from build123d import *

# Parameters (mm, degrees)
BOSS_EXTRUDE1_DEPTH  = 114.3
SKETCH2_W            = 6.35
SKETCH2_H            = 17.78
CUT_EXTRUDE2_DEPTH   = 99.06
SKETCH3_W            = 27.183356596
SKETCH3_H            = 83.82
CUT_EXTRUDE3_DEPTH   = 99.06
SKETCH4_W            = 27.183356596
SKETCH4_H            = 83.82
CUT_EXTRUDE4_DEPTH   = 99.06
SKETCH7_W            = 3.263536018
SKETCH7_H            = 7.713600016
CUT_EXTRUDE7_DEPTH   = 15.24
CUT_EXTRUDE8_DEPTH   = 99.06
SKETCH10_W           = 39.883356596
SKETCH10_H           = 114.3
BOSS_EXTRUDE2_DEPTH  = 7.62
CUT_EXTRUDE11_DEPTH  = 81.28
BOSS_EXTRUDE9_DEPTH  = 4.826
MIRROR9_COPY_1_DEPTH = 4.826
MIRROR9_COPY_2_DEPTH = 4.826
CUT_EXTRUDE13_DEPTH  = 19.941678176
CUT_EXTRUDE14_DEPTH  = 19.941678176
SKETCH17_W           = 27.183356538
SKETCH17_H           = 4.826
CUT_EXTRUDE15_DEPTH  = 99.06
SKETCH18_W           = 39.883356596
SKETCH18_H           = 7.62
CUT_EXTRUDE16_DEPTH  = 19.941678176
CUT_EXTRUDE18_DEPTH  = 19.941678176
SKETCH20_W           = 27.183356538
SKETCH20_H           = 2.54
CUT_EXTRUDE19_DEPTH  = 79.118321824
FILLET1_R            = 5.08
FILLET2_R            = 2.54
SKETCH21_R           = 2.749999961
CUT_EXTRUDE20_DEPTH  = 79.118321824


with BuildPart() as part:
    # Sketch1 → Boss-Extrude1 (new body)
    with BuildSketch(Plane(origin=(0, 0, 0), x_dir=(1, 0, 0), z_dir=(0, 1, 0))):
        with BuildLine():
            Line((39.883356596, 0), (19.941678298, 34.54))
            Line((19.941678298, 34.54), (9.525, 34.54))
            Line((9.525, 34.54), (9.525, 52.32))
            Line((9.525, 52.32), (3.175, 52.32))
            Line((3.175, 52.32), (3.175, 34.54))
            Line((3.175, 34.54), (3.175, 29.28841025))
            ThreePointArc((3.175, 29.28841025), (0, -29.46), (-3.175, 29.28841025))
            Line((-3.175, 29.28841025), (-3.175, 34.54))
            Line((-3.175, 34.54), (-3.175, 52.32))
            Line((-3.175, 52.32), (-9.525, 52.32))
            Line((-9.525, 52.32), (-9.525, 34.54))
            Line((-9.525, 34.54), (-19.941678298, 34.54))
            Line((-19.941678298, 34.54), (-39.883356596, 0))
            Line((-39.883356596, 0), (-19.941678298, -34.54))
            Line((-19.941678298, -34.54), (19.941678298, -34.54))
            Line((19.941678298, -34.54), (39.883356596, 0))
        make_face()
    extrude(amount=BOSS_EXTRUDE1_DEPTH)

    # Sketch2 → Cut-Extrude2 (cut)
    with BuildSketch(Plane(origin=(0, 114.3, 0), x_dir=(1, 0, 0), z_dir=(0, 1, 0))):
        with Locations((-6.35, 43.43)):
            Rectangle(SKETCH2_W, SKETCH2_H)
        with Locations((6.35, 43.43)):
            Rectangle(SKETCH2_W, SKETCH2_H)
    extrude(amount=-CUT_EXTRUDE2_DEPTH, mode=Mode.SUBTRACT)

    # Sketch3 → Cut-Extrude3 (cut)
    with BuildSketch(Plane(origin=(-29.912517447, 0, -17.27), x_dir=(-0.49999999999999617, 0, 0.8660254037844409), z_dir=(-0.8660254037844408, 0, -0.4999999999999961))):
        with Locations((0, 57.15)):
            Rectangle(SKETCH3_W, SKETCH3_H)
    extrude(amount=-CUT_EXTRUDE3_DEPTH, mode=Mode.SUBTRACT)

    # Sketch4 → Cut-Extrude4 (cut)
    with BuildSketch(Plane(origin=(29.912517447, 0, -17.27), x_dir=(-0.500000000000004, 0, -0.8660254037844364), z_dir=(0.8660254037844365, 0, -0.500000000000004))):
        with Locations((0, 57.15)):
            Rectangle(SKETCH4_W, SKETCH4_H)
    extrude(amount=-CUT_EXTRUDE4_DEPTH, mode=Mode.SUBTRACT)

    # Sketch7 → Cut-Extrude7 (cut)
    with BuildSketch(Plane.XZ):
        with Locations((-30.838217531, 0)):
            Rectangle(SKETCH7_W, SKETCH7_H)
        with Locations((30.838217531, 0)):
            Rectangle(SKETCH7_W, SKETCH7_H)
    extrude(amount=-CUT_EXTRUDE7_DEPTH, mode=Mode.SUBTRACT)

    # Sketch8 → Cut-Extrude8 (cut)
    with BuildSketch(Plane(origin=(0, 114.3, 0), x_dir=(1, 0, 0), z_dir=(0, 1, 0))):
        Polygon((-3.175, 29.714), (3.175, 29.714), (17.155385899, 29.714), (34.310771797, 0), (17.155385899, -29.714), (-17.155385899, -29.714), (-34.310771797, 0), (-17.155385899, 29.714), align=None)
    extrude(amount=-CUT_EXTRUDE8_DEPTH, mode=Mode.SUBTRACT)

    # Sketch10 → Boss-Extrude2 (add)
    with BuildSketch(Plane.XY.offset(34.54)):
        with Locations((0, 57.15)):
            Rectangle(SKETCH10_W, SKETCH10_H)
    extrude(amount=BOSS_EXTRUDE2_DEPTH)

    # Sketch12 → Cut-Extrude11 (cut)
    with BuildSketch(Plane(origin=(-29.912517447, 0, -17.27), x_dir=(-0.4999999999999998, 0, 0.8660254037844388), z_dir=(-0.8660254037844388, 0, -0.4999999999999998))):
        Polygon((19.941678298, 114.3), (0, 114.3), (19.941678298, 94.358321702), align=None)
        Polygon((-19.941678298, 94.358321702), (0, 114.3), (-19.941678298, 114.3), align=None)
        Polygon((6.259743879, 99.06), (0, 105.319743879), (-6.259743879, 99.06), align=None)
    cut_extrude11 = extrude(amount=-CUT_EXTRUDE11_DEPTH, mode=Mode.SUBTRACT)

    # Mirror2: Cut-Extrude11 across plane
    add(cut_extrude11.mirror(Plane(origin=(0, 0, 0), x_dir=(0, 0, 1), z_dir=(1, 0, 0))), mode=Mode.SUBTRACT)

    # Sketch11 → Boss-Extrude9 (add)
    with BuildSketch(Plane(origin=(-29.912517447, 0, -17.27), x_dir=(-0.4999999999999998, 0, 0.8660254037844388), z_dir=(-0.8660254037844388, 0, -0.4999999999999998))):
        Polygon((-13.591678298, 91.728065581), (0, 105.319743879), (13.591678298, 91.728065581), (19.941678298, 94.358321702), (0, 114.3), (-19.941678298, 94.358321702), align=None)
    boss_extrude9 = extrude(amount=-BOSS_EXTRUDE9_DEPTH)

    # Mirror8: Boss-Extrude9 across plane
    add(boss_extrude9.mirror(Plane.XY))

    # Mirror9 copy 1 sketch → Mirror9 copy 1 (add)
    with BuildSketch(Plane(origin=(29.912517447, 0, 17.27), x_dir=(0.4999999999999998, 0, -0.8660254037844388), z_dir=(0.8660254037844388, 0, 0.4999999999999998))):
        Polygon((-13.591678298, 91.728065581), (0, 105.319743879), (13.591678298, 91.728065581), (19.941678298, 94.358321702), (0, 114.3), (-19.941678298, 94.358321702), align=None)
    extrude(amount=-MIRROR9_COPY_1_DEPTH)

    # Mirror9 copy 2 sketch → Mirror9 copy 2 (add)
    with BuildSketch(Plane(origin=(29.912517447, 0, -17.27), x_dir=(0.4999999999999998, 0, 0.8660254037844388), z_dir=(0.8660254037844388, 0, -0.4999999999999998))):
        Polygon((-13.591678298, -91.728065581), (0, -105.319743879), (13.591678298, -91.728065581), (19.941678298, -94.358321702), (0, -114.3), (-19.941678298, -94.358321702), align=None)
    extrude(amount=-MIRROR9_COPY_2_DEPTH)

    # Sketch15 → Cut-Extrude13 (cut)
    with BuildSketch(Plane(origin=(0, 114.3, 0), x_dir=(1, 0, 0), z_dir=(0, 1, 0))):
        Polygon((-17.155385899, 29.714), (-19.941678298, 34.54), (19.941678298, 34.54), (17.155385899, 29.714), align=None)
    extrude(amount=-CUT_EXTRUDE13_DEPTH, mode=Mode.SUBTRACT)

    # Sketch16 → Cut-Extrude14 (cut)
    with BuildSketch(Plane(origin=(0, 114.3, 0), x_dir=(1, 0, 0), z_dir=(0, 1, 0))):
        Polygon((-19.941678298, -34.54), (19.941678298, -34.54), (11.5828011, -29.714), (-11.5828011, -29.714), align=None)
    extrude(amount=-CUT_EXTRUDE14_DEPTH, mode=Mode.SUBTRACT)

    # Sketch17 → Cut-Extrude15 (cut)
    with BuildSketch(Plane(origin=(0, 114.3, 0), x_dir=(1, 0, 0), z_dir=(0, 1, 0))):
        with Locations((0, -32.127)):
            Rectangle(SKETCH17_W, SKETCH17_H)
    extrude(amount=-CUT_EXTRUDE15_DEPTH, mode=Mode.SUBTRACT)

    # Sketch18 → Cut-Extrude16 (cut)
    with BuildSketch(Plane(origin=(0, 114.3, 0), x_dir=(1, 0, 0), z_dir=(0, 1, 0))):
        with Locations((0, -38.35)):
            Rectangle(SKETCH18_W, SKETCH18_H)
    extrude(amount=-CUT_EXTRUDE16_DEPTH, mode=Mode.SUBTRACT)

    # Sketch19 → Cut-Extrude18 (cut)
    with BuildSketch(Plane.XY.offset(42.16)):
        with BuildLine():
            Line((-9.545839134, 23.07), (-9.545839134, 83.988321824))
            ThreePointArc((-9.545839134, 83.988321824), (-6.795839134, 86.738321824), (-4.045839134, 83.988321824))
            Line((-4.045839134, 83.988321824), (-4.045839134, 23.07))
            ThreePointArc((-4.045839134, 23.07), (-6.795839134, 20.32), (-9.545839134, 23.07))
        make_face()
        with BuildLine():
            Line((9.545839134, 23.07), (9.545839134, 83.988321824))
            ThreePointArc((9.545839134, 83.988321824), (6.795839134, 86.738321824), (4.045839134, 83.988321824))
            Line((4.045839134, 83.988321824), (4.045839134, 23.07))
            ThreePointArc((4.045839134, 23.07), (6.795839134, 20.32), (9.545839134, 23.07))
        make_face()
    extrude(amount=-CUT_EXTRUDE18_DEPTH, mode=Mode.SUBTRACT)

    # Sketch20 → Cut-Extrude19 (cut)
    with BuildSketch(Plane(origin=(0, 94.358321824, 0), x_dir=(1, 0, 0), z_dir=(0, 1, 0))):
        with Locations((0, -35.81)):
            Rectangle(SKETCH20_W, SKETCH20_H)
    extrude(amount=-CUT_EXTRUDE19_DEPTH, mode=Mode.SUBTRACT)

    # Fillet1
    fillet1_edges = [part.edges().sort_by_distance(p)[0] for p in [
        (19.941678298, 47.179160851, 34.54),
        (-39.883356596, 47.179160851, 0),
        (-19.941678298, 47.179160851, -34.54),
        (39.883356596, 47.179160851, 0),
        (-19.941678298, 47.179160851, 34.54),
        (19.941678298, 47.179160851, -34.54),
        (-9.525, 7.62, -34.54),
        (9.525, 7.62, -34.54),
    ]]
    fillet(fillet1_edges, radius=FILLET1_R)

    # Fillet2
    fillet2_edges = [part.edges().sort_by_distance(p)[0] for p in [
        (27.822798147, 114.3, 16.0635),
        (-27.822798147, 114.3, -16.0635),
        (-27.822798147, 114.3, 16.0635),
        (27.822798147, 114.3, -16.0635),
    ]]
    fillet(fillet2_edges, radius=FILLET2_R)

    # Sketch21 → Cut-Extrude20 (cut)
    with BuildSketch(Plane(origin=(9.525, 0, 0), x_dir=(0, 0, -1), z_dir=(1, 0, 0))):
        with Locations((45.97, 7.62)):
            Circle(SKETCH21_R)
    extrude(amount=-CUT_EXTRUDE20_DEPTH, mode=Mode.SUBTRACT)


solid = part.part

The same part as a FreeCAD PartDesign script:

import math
import FreeCAD as App
import Part
import Sketcher
from FreeCAD import Vector
Q = App.Units.Quantity


def edges_at(feature, points):
    """Names of the edges that pass closest to the given points."""
    edges = feature.Shape.Edges
    near = lambda p: min(range(len(edges)), key=lambda i: edges[i].distToShape(Part.Vertex(*p))[0])
    return sorted({f"Edge{near(p) + 1}" for p in points})


def add_polygon(sketch, points):
    """Adds a closed chain of lines whose ends are joined by coincident constraints."""
    first, n = sketch.GeometryCount, len(points)
    for a, b in zip(points, points[1:] + points[:1]):
        sketch.addGeometry(Part.LineSegment(App.Vector(*a, 0), App.Vector(*b, 0)), False)
    for i in range(n):
        sketch.addConstraint(Sketcher.Constraint("Coincident", first + i, 2, first + (i + 1) % n, 1))

doc = App.newDocument("Part")
body = doc.addObject("PartDesign::Body", "Body")

# Sketch on XZ plane
sketch1 = doc.addObject("Sketcher::SketchObject", "Sketch")
body.addObject(sketch1)
sketch1.AttachmentSupport = (doc.XZ_Plane, [""])
sketch1.MapMode = "FlatFace"
sketch1.addGeometry([
    Part.LineSegment(Vector(40, 0, 0), Vector(20, -35, 0)),  # 0
    Part.LineSegment(Vector(20, -35, 0), Vector(10, -35, 0)),  # 1
    Part.LineSegment(Vector(10, -35, 0), Vector(10, -52, 0)),  # 2
    Part.LineSegment(Vector(10, -52, 0), Vector(3, -52, 0)),  # 3
    Part.LineSegment(Vector(3, -52, 0), Vector(3, -29, 0)),  # 4
    Part.ArcOfCircle(Part.Circle(Vector(0, 0, 0), Vector(0, 0, 1), 29), math.radians(-84), math.radians(264)),  # 5
    Part.LineSegment(Vector(-3, -29, 0), Vector(-3, -52, 0)),  # 6
    Part.LineSegment(Vector(-3, -52, 0), Vector(-10, -52, 0)),  # 7
    Part.LineSegment(Vector(-10, -52, 0), Vector(-10, -35, 0)),  # 8
    Part.LineSegment(Vector(-10, -35, 0), Vector(-20, -35, 0)),  # 9
    Part.LineSegment(Vector(-20, -35, 0), Vector(-40, 0, 0)),  # 10
    Part.LineSegment(Vector(-40, 0, 0), Vector(-20, 35, 0)),  # 11
    Part.LineSegment(Vector(-20, 35, 0), Vector(20, 35, 0)),  # 12
    Part.LineSegment(Vector(20, 35, 0), Vector(40, 0, 0)),  # 13
], False)
sketch1.addConstraint([
    Sketcher.Constraint("Coincident", 0, 2, 1, 1),
    Sketcher.Constraint("Coincident", 1, 2, 2, 1),
    Sketcher.Constraint("Coincident", 2, 2, 3, 1),
    Sketcher.Constraint("Coincident", 3, 2, 4, 1),
    Sketcher.Constraint("Coincident", 4, 2, 5, 1),
    Sketcher.Constraint("Coincident", 5, 2, 6, 1),
    Sketcher.Constraint("Coincident", 6, 2, 7, 1),
    Sketcher.Constraint("Coincident", 7, 2, 8, 1),
    Sketcher.Constraint("Coincident", 8, 2, 9, 1),
    Sketcher.Constraint("Coincident", 9, 2, 10, 1),
    Sketcher.Constraint("Coincident", 10, 2, 11, 1),
    Sketcher.Constraint("Coincident", 11, 2, 12, 1),
    Sketcher.Constraint("Coincident", 12, 2, 13, 1),
    Sketcher.Constraint("Coincident", 13, 2, 0, 1),
    Sketcher.Constraint("Horizontal", 1),
    Sketcher.Constraint("Vertical", 2),
    Sketcher.Constraint("Horizontal", 3),
    Sketcher.Constraint("Vertical", 4),
    Sketcher.Constraint("Vertical", 6),
    Sketcher.Constraint("Horizontal", 7),
    Sketcher.Constraint("Vertical", 8),
    Sketcher.Constraint("Horizontal", 9),
    Sketcher.Constraint("Horizontal", 12),
    Sketcher.Constraint("Coincident", 5, 3, -1, 1),
    Sketcher.Constraint("Symmetric", 0, 2, 11, 2, -1, 1),
    Sketcher.Constraint("Symmetric", 9, 2, 12, 2, -1, 1),
    Sketcher.Constraint("Symmetric", 10, 2, 13, 2, -1, 1),
    Sketcher.Constraint("Symmetric", 3, 2, 6, 2, -2),
    Sketcher.Constraint("PointOnObject", 10, 2, -1),
    Sketcher.Constraint("Vertical", 9, 2, 11, 2),
    Sketcher.Constraint("Equal", 3, 7),
    Sketcher.Constraint("DistanceY", 2, 2, 2, 1, Q("0.7 in")),
    Sketcher.Constraint("Angle", 0, Q("-120 deg")),
    Sketcher.Constraint("DistanceX", 3, 2, 3, 1, Q("0.25 in")),
    Sketcher.Constraint("DistanceX", 5, 2, 1, 2, Q("0.5 in")),
    Sketcher.Constraint("Radius", 5, 29.46),
    Sketcher.Constraint("DistanceX", 1, 2, 1, 1, 10.416678),
    Sketcher.Constraint("DistanceY", 4, 1, 4, 2, 23.03159),
])
pad1 = doc.addObject("PartDesign::Pad", "Pad")
body.addObject(pad1)
pad1.Profile = sketch1
pad1.Length = Q("4.5 in")
pad1.Reversed = True

# Sketch on XZ plane
sketch2 = doc.addObject("Sketcher::SketchObject", "Sketch001")
body.addObject(sketch2)
sketch2.AttachmentSupport = (doc.XZ_Plane, [""])
sketch2.MapMode = "FlatFace"
sketch2.AttachmentOffset = App.Placement(Vector(0, 0, -4.5 * 25.4), App.Rotation())
add_polygon(sketch2, [(-10, -52), (-10, -35), (-3, -35), (-3, -52)])  # lines 0-3
add_polygon(sketch2, [(3, -52), (3, -35), (10, -35), (10, -52)])  # lines 4-7
sketch2.addConstraint([
    Sketcher.Constraint("Vertical", 0),
    Sketcher.Constraint("Horizontal", 1),
    Sketcher.Constraint("Vertical", 2),
    Sketcher.Constraint("Horizontal", 3),
    Sketcher.Constraint("Vertical", 4),
    Sketcher.Constraint("Horizontal", 5),
    Sketcher.Constraint("Vertical", 6),
    Sketcher.Constraint("Horizontal", 7),
    Sketcher.Constraint("Symmetric", 1, 2, 4, 2, -2),
    Sketcher.Constraint("Symmetric", 3, 2, 6, 2, -2),
    Sketcher.Constraint("DistanceY", 0, 1, 0, 2, Q("0.7 in")),
    Sketcher.Constraint("DistanceX", 1, 1, 1, 2, Q("0.25 in")),
    Sketcher.Constraint("DistanceX", 0, 2, 4, 2, Q("0.5 in")),
    Sketcher.Constraint("DistanceY", 0, 2, -1, 1, 34.54),
])
pocket1 = doc.addObject("PartDesign::Pocket", "Pocket")
body.addObject(pocket1)
pocket1.Profile = sketch2
pocket1.Length = Q("3.9 in")
pocket1.Reversed = True

# Sketch on an angled plane
sketch3 = doc.addObject("Sketcher::SketchObject", "Sketch002")
body.addObject(sketch3)
sketch3.Placement = App.Placement(Vector(-29.912517, 0, -17.27), App.Rotation(Vector(-0.5, 0, 0.866025404), Vector(0, 1, 0), Vector(-0.866025404, 0, -0.5), "ZXY"))
add_polygon(sketch3, [(-14, 99), (-14, 15), (14, 15), (14, 99)])  # lines 0-3
sketch3.addConstraint([
    Sketcher.Constraint("Vertical", 0),
    Sketcher.Constraint("Horizontal", 1),
    Sketcher.Constraint("Vertical", 2),
    Sketcher.Constraint("Horizontal", 3),
    Sketcher.Constraint("DistanceY", 0, 2, 0, 1, Q("3.3 in")),
    Sketcher.Constraint("DistanceY", -1, 1, 0, 2, Q("0.6 in")),
    Sketcher.Constraint("DistanceX", 1, 1, 1, 2, 27.183357),
    Sketcher.Constraint("DistanceX", 0, 2, -1, 1, 13.591678),
])
pocket2 = doc.addObject("PartDesign::Pocket", "Pocket001")
body.addObject(pocket2)
pocket2.Profile = sketch3
pocket2.Length = Q("3.9 in")

# Sketch on an angled plane
sketch4 = doc.addObject("Sketcher::SketchObject", "Sketch003")
body.addObject(sketch4)
sketch4.Placement = App.Placement(Vector(29.912517, 0, -17.27), App.Rotation(Vector(-0.5, 0, -0.866025404), Vector(0, 1, 0), Vector(0.866025404, 0, -0.5), "ZXY"))
add_polygon(sketch4, [(-14, 99), (-14, 15), (14, 15), (14, 99)])  # lines 0-3
sketch4.addConstraint([
    Sketcher.Constraint("Vertical", 0),
    Sketcher.Constraint("Horizontal", 1),
    Sketcher.Constraint("Vertical", 2),
    Sketcher.Constraint("Horizontal", 3),
    Sketcher.Constraint("DistanceY", 0, 2, 0, 1, Q("3.3 in")),
    Sketcher.Constraint("DistanceY", -1, 1, 0, 2, Q("0.6 in")),
    Sketcher.Constraint("DistanceX", 1, 1, 1, 2, 27.183357),
    Sketcher.Constraint("DistanceX", 0, 2, -1, 1, 13.591678),
])
pocket3 = doc.addObject("PartDesign::Pocket", "Pocket002")
body.addObject(pocket3)
pocket3.Profile = sketch4
pocket3.Length = Q("3.9 in")

# Sketch on XZ plane
sketch5 = doc.addObject("Sketcher::SketchObject", "Sketch004")
body.addObject(sketch5)
sketch5.AttachmentSupport = (doc.XZ_Plane, [""])
sketch5.MapMode = "FlatFace"
add_polygon(sketch5, [(-32.5, 3.9), (-32.5, -3.9), (-29.2, -3.9), (-29.2, 3.9)])  # lines 0-3
add_polygon(sketch5, [(29.2, 3.9), (29.2, -3.9), (32.5, -3.9), (32.5, 3.9)])  # lines 4-7
sketch5.addConstraint([
    Sketcher.Constraint("Vertical", 0),
    Sketcher.Constraint("Horizontal", 1),
    Sketcher.Constraint("Vertical", 2),
    Sketcher.Constraint("Horizontal", 3),
    Sketcher.Constraint("Vertical", 4),
    Sketcher.Constraint("Horizontal", 5),
    Sketcher.Constraint("Vertical", 6),
    Sketcher.Constraint("Horizontal", 7),
    Sketcher.Constraint("Symmetric", 2, 2, 4, 2, -1, 1),
    Sketcher.Constraint("Symmetric", 0, 2, 6, 2, -1, 1),
    Sketcher.Constraint("Horizontal", 1, 2, 4, 2),
    Sketcher.Constraint("DistanceY", 0, 2, 0, 1, 7.7136),
    Sketcher.Constraint("DistanceX", 1, 2, 4, 2, 58.412899),
    Sketcher.Constraint("DistanceX", 1, 1, 1, 2, 3.263536),
])
pocket4 = doc.addObject("PartDesign::Pocket", "Pocket003")
body.addObject(pocket4)
pocket4.Profile = sketch5
pocket4.Length = Q("0.6 in")

# Sketch on XZ plane
sketch6 = doc.addObject("Sketcher::SketchObject", "Sketch005")
body.addObject(sketch6)
sketch6.AttachmentSupport = (doc.XZ_Plane, [""])
sketch6.MapMode = "FlatFace"
sketch6.AttachmentOffset = App.Placement(Vector(0, 0, -4.5 * 25.4), App.Rotation())
add_polygon(sketch6, [(17, -30), (-17, -30), (-34, 0), (-17, 30), (17, 30), (34, 0)])  # lines 0-5
sketch6.addConstraint([
    Sketcher.Constraint("Horizontal", 0),
    Sketcher.Constraint("Horizontal", 3),
    Sketcher.Constraint("Symmetric", 0, 2, 3, 2, -1, 1),
    Sketcher.Constraint("Symmetric", 1, 2, 4, 2, -1, 1),
    Sketcher.Constraint("PointOnObject", 1, 2, -1),
    Sketcher.Constraint("Parallel", 2, 5),
    Sketcher.Constraint("Vertical", 0, 2, 2, 2),
    Sketcher.Constraint("Angle", 1, Q("120 deg")),
    Sketcher.Constraint("DistanceX", 0, 2, 0, 1, 34.310772),
    Sketcher.Constraint("DistanceY", 0, 2, -1, 1, 29.714),
])
pocket5 = doc.addObject("PartDesign::Pocket", "Pocket004")
body.addObject(pocket5)
pocket5.Profile = sketch6
pocket5.Length = Q("3.9 in")
pocket5.Reversed = True

# Sketch on XY plane
sketch7 = doc.addObject("Sketcher::SketchObject", "Sketch006")
body.addObject(sketch7)
sketch7.AttachmentSupport = (doc.XY_Plane, [""])
sketch7.MapMode = "FlatFace"
sketch7.AttachmentOffset = App.Placement(Vector(0, 0, 34.54), App.Rotation())
add_polygon(sketch7, [(-20, 114), (-20, 0), (20, 0), (20, 114)])  # lines 0-3
sketch7.addConstraint([
    Sketcher.Constraint("Vertical", 0),
    Sketcher.Constraint("Horizontal", 1),
    Sketcher.Constraint("Vertical", 2),
    Sketcher.Constraint("Horizontal", 3),
    Sketcher.Constraint("Symmetric", 0, 2, 1, 2, -1, 1),
    Sketcher.Constraint("DistanceY", 0, 2, 0, 1, Q("4.5 in")),
    Sketcher.Constraint("DistanceX", 1, 1, 1, 2, 39.883357),
])
pad2 = doc.addObject("PartDesign::Pad", "Pad001")
body.addObject(pad2)
pad2.Profile = sketch7
pad2.Length = Q("0.3 in")

# Sketch on an angled plane
sketch8 = doc.addObject("Sketcher::SketchObject", "Sketch007")
body.addObject(sketch8)
sketch8.Placement = App.Placement(Vector(-29.912517, 0, -17.27), App.Rotation(Vector(-0.5, 0, 0.866025404), Vector(0, 1, 0), Vector(-0.866025404, 0, -0.5), "ZXY"))
add_polygon(sketch8, [(20, 114), (0, 114), (20, 94)])  # lines 0-2
add_polygon(sketch8, [(-20, 94), (0, 114), (-20, 114)])  # lines 3-5
add_polygon(sketch8, [(6, 99), (0, 105), (-6, 99)])  # lines 6-8
sketch8.addConstraint([
    Sketcher.Constraint("Horizontal", 0),
    Sketcher.Constraint("Vertical", 2),
    Sketcher.Constraint("Horizontal", 4),
    Sketcher.Constraint("Vertical", 5),
    Sketcher.Constraint("Horizontal", 8),
    Sketcher.Constraint("Coincident", 3, 2, 0, 2),
    Sketcher.Constraint("Symmetric", 1, 2, 5, 2, -2),
    Sketcher.Constraint("PointOnObject", 0, 2, -2),
    Sketcher.Constraint("PointOnObject", 6, 2, -2),
    Sketcher.Constraint("Perpendicular", 1, 3),
    Sketcher.Constraint("Perpendicular", 3, 6),
    Sketcher.Constraint("Perpendicular", 6, 7),
    Sketcher.Constraint("DistanceY", -1, 1, 0, 2, Q("4.5 in")),
    Sketcher.Constraint("DistanceY", -1, 1, 7, 2, Q("3.9 in")),
    Sketcher.Constraint("DistanceX", 0, 2, 0, 1, 19.941678),
    Sketcher.Constraint("DistanceX", 8, 1, 8, 2, 12.519488),
])
pocket6 = doc.addObject("PartDesign::Pocket", "Pocket005")
body.addObject(pocket6)
pocket6.Profile = sketch8
pocket6.Length = Q("3.2 in")
doc.recompute()

mirrored = doc.addObject("PartDesign::Mirrored", "Mirrored")
body.addObject(mirrored)
mirrored.Originals = [pocket6]
mirrored.MirrorPlane = (doc.YZ_Plane, [""])
body.Tip = mirrored

# Sketch on an angled plane
sketch9 = doc.addObject("Sketcher::SketchObject", "Sketch008")
body.addObject(sketch9)
sketch9.Placement = App.Placement(Vector(-29.912517, 0, -17.27), App.Rotation(Vector(-0.5, 0, 0.866025404), Vector(0, 1, 0), Vector(-0.866025404, 0, -0.5), "ZXY"))
add_polygon(sketch9, [(-14, 92), (0, 105), (14, 92), (20, 94), (0, 114), (-20, 94)])  # lines 0-5
sketch9.addConstraint([
    Sketcher.Constraint("Symmetric", 2, 2, 4, 2, -2),
    Sketcher.Constraint("Symmetric", 1, 2, 5, 2, -2),
    Sketcher.Constraint("PointOnObject", 0, 2, -2),
    Sketcher.Constraint("PointOnObject", 3, 2, -2),
    Sketcher.Constraint("Perpendicular", 0, 1),
    Sketcher.Constraint("Parallel", 1, 3),
    Sketcher.Constraint("DistanceY", -1, 1, 3, 2, Q("4.5 in")),
    Sketcher.Constraint("Angle", 2, Q("22.5 deg")),
    Sketcher.Constraint("DistanceX", 1, 2, 2, 2, Q("0.25 in")),
    Sketcher.Constraint("Distance", 3, 28.201792),
])
pad3 = doc.addObject("PartDesign::Pad", "Pad002")
body.addObject(pad3)
pad3.Profile = sketch9
pad3.Length = Q("0.19 in")
pad3.Reversed = True
doc.recompute()

mirrored2 = doc.addObject("PartDesign::Mirrored", "Mirrored001")
body.addObject(mirrored2)
mirrored2.Originals = [pad3]
mirrored2.MirrorPlane = (doc.XY_Plane, [""])
body.Tip = mirrored2

# Sketch on an angled plane
sketch10 = doc.addObject("Sketcher::SketchObject", "Sketch009")
body.addObject(sketch10)
sketch10.Placement = App.Placement(Vector(29.912517, 0, 17.27), App.Rotation(Vector(0.5, 0, -0.866025404), Vector(0, 1, 0), Vector(0.866025404, 0, 0.5), "ZXY"))
add_polygon(sketch10, [(-14, 92), (0, 105), (14, 92), (20, 94), (0, 114), (-20, 94)])  # lines 0-5
sketch10.addConstraint([
    Sketcher.Constraint("Symmetric", 2, 2, 4, 2, -2),
    Sketcher.Constraint("Symmetric", 1, 2, 5, 2, -2),
    Sketcher.Constraint("PointOnObject", 0, 2, -2),
    Sketcher.Constraint("PointOnObject", 3, 2, -2),
    Sketcher.Constraint("Perpendicular", 0, 1),
    Sketcher.Constraint("Parallel", 1, 3),
    Sketcher.Constraint("DistanceY", -1, 1, 3, 2, Q("4.5 in")),
    Sketcher.Constraint("Angle", 2, Q("22.5 deg")),
    Sketcher.Constraint("DistanceX", 1, 2, 2, 2, Q("0.25 in")),
    Sketcher.Constraint("Distance", 3, 28.201792),
])
pad4 = doc.addObject("PartDesign::Pad", "Pad003")
body.addObject(pad4)
pad4.Profile = sketch10
pad4.Length = Q("0.19 in")
pad4.Reversed = True

# Sketch on an angled plane
sketch11 = doc.addObject("Sketcher::SketchObject", "Sketch010")
body.addObject(sketch11)
sketch11.Placement = App.Placement(Vector(29.912517, 0, -17.27), App.Rotation(Vector(0.5, 0, 0.866025404), Vector(0, -1, 0), Vector(0.866025404, 0, -0.5), "ZXY"))
add_polygon(sketch11, [(0, -105), (-14, -92), (-20, -94), (0, -114), (20, -94), (14, -92)])  # lines 0-5
sketch11.addConstraint([
    Sketcher.Constraint("Symmetric", 1, 2, 3, 2, -2),
    Sketcher.Constraint("Symmetric", 0, 2, 4, 2, -2),
    Sketcher.Constraint("PointOnObject", 2, 2, -2),
    Sketcher.Constraint("PointOnObject", 5, 2, -2),
    Sketcher.Constraint("Parallel", 0, 2),
    Sketcher.Constraint("Perpendicular", 2, 3),
    Sketcher.Constraint("DistanceY", 2, 2, -1, 1, Q("4.5 in")),
    Sketcher.Constraint("Angle", 1, Q("-157.5 deg")),
    Sketcher.Constraint("DistanceX", 1, 2, 0, 2, Q("0.25 in")),
    Sketcher.Constraint("Distance", 2, 28.201792),
])
pad5 = doc.addObject("PartDesign::Pad", "Pad004")
body.addObject(pad5)
pad5.Profile = sketch11
pad5.Length = Q("0.19 in")
pad5.Reversed = True

# Sketch on XZ plane
sketch12 = doc.addObject("Sketcher::SketchObject", "Sketch011")
body.addObject(sketch12)
sketch12.AttachmentSupport = (doc.XZ_Plane, [""])
sketch12.MapMode = "FlatFace"
sketch12.AttachmentOffset = App.Placement(Vector(0, 0, -4.5 * 25.4), App.Rotation())
add_polygon(sketch12, [(-20, -35), (-17, -30), (17, -30), (20, -35)])  # lines 0-3
sketch12.addConstraint([
    Sketcher.Constraint("Horizontal", 1),
    Sketcher.Constraint("Horizontal", 3),
    Sketcher.Constraint("Equal", 0, 2),
    Sketcher.Constraint("Angle", 0, Q("60 deg")),
    Sketcher.Constraint("DistanceY", 2, 2, 1, 2, Q("0.19 in")),
    Sketcher.Constraint("DistanceX", 1, 1, 1, 2, 34.310772),
    Sketcher.Constraint("DistanceY", 0, 2, -1, 1, 29.714),
    Sketcher.Constraint("DistanceX", -1, 1, 2, 2, 19.941678),
])
pocket7 = doc.addObject("PartDesign::Pocket", "Pocket006")
body.addObject(pocket7)
pocket7.Profile = sketch12
pocket7.Length = 19.941678
pocket7.Reversed = True

# Sketch on XZ plane
sketch13 = doc.addObject("Sketcher::SketchObject", "Sketch012")
body.addObject(sketch13)
sketch13.AttachmentSupport = (doc.XZ_Plane, [""])
sketch13.MapMode = "FlatFace"
sketch13.AttachmentOffset = App.Placement(Vector(0, 0, -4.5 * 25.4), App.Rotation())
add_polygon(sketch13, [(-20, 35), (20, 35), (12, 30), (-12, 30)])  # lines 0-3
sketch13.addConstraint([
    Sketcher.Constraint("Horizontal", 0),
    Sketcher.Constraint("Horizontal", 2),
    Sketcher.Constraint("Equal", 1, 3),
    Sketcher.Constraint("Angle", 1, Q("-150 deg")),
    Sketcher.Constraint("Distance", 1, Q("0.38 in")),
    Sketcher.Constraint("DistanceY", -1, 1, 0, 2, 34.54),
    Sketcher.Constraint("DistanceX", -1, 1, 1, 2, 11.582801),
    Sketcher.Constraint("DistanceX", 2, 2, -1, 1, 11.582801),
])
pocket8 = doc.addObject("PartDesign::Pocket", "Pocket007")
body.addObject(pocket8)
pocket8.Profile = sketch13
pocket8.Length = 19.941678
pocket8.Reversed = True

# Sketch on XZ plane
sketch14 = doc.addObject("Sketcher::SketchObject", "Sketch013")
body.addObject(sketch14)
sketch14.AttachmentSupport = (doc.XZ_Plane, [""])
sketch14.MapMode = "FlatFace"
sketch14.AttachmentOffset = App.Placement(Vector(0, 0, -4.5 * 25.4), App.Rotation())
add_polygon(sketch14, [(-13.6, 29.7), (-13.6, 34.5), (13.6, 34.5), (13.6, 29.7)])  # lines 0-3
sketch14.addConstraint([
    Sketcher.Constraint("Vertical", 0),
    Sketcher.Constraint("Horizontal", 1),
    Sketcher.Constraint("Vertical", 2),
    Sketcher.Constraint("Horizontal", 3),
    Sketcher.Constraint("DistanceY", 0, 1, 0, 2, Q("0.19 in")),
    Sketcher.Constraint("DistanceY", -1, 1, 0, 2, 34.54),
    Sketcher.Constraint("DistanceX", 1, 1, 1, 2, 27.183357),
    Sketcher.Constraint("DistanceX", 0, 2, -1, 1, 13.591678),
])
pocket9 = doc.addObject("PartDesign::Pocket", "Pocket008")
body.addObject(pocket9)
pocket9.Profile = sketch14
pocket9.Length = Q("3.9 in")
pocket9.Reversed = True

# Sketch on XZ plane
sketch15 = doc.addObject("Sketcher::SketchObject", "Sketch014")
body.addObject(sketch15)
sketch15.AttachmentSupport = (doc.XZ_Plane, [""])
sketch15.MapMode = "FlatFace"
sketch15.AttachmentOffset = App.Placement(Vector(0, 0, -4.5 * 25.4), App.Rotation())
add_polygon(sketch15, [(-20, 35), (-20, 42), (20, 42), (20, 35)])  # lines 0-3
sketch15.addConstraint([
    Sketcher.Constraint("Vertical", 0),
    Sketcher.Constraint("Horizontal", 1),
    Sketcher.Constraint("Vertical", 2),
    Sketcher.Constraint("Horizontal", 3),
    Sketcher.Constraint("DistanceY", 0, 1, 0, 2, Q("0.3 in")),
    Sketcher.Constraint("DistanceY", -1, 1, 0, 2, 42.16),
    Sketcher.Constraint("DistanceX", 1, 1, 1, 2, 39.883357),
    Sketcher.Constraint("DistanceX", 0, 2, -1, 1, 19.941678),
])
pocket10 = doc.addObject("PartDesign::Pocket", "Pocket009")
body.addObject(pocket10)
pocket10.Profile = sketch15
pocket10.Length = 19.941678
pocket10.Reversed = True

# Sketch on XY plane
sketch16 = doc.addObject("Sketcher::SketchObject", "Sketch015")
body.addObject(sketch16)
sketch16.AttachmentSupport = (doc.XY_Plane, [""])
sketch16.MapMode = "FlatFace"
sketch16.AttachmentOffset = App.Placement(Vector(0, 0, 42.16), App.Rotation())
sketch16.addGeometry([
    Part.LineSegment(Vector(-9.5, 84, 0), Vector(-9.5, 23.1, 0)),  # 0
    Part.ArcOfCircle(Part.Circle(Vector(-6.8, 23.1, 0), Vector(0, 0, 1), 2.8), math.radians(180), math.radians(360)),  # 1
    Part.LineSegment(Vector(-4, 23.1, 0), Vector(-4, 84, 0)),  # 2
    Part.ArcOfCircle(Part.Circle(Vector(-6.8, 84, 0), Vector(0, 0, 1), 2.8), math.radians(0), math.radians(180)),  # 3
    Part.LineSegment(Vector(9.5, 23.1, 0), Vector(9.5, 84, 0)),  # 4
    Part.ArcOfCircle(Part.Circle(Vector(6.8, 84, 0), Vector(0, 0, 1), 2.8), math.radians(0), math.radians(180)),  # 5
    Part.LineSegment(Vector(4, 84, 0), Vector(4, 23.1, 0)),  # 6
    Part.ArcOfCircle(Part.Circle(Vector(6.8, 23.1, 0), Vector(0, 0, 1), 2.8), math.radians(180), math.radians(360)),  # 7
], False)
sketch16.addConstraint([
    Sketcher.Constraint("Tangent", 0, 2, 1, 1),
    Sketcher.Constraint("Tangent", 1, 2, 2, 1),
    Sketcher.Constraint("Tangent", 2, 2, 3, 1),
    Sketcher.Constraint("Tangent", 3, 2, 0, 1),
    Sketcher.Constraint("Tangent", 4, 2, 5, 1),
    Sketcher.Constraint("Tangent", 5, 2, 6, 1),
    Sketcher.Constraint("Tangent", 6, 2, 7, 1),
    Sketcher.Constraint("Tangent", 7, 2, 4, 1),
    Sketcher.Constraint("Vertical", 0),
    Sketcher.Constraint("Vertical", 2),
    Sketcher.Constraint("Vertical", 4),
    Sketcher.Constraint("Vertical", 6),
    Sketcher.Constraint("Equal", 3, 5),
    Sketcher.Constraint("Symmetric", 3, 3, 5, 3, -2),
    Sketcher.Constraint("Horizontal", 1, 3, 7, 3),
    Sketcher.Constraint("Radius", 1, 2.75),
    Sketcher.Constraint("DistanceY", 0, 2, 0, 1, 60.918322),
    Sketcher.Constraint("DistanceY", -1, 1, 1, 3, 23.07),
    Sketcher.Constraint("DistanceX", 1, 3, -1, 1, 6.795839),
])
pocket11 = doc.addObject("PartDesign::Pocket", "Pocket010")
body.addObject(pocket11)
pocket11.Profile = sketch16
pocket11.Length = 19.941678

# Sketch on XZ plane
sketch17 = doc.addObject("Sketcher::SketchObject", "Sketch016")
body.addObject(sketch17)
sketch17.AttachmentSupport = (doc.XZ_Plane, [""])
sketch17.MapMode = "FlatFace"
sketch17.AttachmentOffset = App.Placement(Vector(0, 0, -94.358322), App.Rotation())
add_polygon(sketch17, [(-13.6, 34.5), (-13.6, 37.1), (13.6, 37.1), (13.6, 34.5)])  # lines 0-3
sketch17.addConstraint([
    Sketcher.Constraint("Vertical", 0),
    Sketcher.Constraint("Horizontal", 1),
    Sketcher.Constraint("Vertical", 2),
    Sketcher.Constraint("Horizontal", 3),
    Sketcher.Constraint("DistanceY", 0, 1, 0, 2, Q("0.1 in")),
    Sketcher.Constraint("DistanceY", -1, 1, 0, 2, 37.08),
    Sketcher.Constraint("DistanceX", 1, 1, 1, 2, 27.183357),
    Sketcher.Constraint("DistanceX", 0, 2, -1, 1, 13.591678),
])
pocket12 = doc.addObject("PartDesign::Pocket", "Pocket011")
body.addObject(pocket12)
pocket12.Profile = sketch17
pocket12.Length = 79.118322
pocket12.Reversed = True
doc.recompute()

fillet = doc.addObject("PartDesign::Fillet", "Fillet")
body.addObject(fillet)
fillet.Base = (pocket12, edges_at(pocket12, [
    (19.942, 47.179, 34.54),
    (-39.883, 47.179, 0),
    (-19.942, 47.179, -34.54),
    (39.883, 47.179, 0),
    (-19.942, 47.179, 34.54),
    (19.942, 47.179, -34.54),
    (-9.525, 7.62, -34.54),
    (9.525, 7.62, -34.54),
]))
fillet.Radius = Q("0.2 in")
doc.recompute()

fillet2 = doc.addObject("PartDesign::Fillet", "Fillet001")
body.addObject(fillet2)
fillet2.Base = (fillet, edges_at(fillet, [
    (27.823, 114.3, 16.064),
    (-27.823, 114.3, -16.064),
    (-27.823, 114.3, 16.064),
    (27.823, 114.3, -16.064),
]))
fillet2.Radius = Q("0.1 in")

# Sketch on YZ plane
sketch18 = doc.addObject("Sketcher::SketchObject", "Sketch017")
body.addObject(sketch18)
sketch18.AttachmentSupport = (doc.YZ_Plane, [""])
sketch18.MapMode = "FlatFace"
sketch18.AttachmentOffset = App.Placement(Vector(0, 0, 0.375 * 25.4), App.Rotation())
sketch18.addGeometry(Part.Circle(Vector(7.6, -46, 0), Vector(0, 0, 1), 2.7), False)
sketch18.addConstraint([
    Sketcher.Constraint("DistanceX", -1, 1, 0, 3, Q("0.3 in")),
    Sketcher.Constraint("Diameter", 0, 5.5),
    Sketcher.Constraint("DistanceY", 0, 3, -1, 1, 45.97),
])
pocket13 = doc.addObject("PartDesign::Pocket", "Pocket012")
body.addObject(pocket13)
pocket13.Profile = sketch18
pocket13.Length = 79.118322

doc.recompute()
